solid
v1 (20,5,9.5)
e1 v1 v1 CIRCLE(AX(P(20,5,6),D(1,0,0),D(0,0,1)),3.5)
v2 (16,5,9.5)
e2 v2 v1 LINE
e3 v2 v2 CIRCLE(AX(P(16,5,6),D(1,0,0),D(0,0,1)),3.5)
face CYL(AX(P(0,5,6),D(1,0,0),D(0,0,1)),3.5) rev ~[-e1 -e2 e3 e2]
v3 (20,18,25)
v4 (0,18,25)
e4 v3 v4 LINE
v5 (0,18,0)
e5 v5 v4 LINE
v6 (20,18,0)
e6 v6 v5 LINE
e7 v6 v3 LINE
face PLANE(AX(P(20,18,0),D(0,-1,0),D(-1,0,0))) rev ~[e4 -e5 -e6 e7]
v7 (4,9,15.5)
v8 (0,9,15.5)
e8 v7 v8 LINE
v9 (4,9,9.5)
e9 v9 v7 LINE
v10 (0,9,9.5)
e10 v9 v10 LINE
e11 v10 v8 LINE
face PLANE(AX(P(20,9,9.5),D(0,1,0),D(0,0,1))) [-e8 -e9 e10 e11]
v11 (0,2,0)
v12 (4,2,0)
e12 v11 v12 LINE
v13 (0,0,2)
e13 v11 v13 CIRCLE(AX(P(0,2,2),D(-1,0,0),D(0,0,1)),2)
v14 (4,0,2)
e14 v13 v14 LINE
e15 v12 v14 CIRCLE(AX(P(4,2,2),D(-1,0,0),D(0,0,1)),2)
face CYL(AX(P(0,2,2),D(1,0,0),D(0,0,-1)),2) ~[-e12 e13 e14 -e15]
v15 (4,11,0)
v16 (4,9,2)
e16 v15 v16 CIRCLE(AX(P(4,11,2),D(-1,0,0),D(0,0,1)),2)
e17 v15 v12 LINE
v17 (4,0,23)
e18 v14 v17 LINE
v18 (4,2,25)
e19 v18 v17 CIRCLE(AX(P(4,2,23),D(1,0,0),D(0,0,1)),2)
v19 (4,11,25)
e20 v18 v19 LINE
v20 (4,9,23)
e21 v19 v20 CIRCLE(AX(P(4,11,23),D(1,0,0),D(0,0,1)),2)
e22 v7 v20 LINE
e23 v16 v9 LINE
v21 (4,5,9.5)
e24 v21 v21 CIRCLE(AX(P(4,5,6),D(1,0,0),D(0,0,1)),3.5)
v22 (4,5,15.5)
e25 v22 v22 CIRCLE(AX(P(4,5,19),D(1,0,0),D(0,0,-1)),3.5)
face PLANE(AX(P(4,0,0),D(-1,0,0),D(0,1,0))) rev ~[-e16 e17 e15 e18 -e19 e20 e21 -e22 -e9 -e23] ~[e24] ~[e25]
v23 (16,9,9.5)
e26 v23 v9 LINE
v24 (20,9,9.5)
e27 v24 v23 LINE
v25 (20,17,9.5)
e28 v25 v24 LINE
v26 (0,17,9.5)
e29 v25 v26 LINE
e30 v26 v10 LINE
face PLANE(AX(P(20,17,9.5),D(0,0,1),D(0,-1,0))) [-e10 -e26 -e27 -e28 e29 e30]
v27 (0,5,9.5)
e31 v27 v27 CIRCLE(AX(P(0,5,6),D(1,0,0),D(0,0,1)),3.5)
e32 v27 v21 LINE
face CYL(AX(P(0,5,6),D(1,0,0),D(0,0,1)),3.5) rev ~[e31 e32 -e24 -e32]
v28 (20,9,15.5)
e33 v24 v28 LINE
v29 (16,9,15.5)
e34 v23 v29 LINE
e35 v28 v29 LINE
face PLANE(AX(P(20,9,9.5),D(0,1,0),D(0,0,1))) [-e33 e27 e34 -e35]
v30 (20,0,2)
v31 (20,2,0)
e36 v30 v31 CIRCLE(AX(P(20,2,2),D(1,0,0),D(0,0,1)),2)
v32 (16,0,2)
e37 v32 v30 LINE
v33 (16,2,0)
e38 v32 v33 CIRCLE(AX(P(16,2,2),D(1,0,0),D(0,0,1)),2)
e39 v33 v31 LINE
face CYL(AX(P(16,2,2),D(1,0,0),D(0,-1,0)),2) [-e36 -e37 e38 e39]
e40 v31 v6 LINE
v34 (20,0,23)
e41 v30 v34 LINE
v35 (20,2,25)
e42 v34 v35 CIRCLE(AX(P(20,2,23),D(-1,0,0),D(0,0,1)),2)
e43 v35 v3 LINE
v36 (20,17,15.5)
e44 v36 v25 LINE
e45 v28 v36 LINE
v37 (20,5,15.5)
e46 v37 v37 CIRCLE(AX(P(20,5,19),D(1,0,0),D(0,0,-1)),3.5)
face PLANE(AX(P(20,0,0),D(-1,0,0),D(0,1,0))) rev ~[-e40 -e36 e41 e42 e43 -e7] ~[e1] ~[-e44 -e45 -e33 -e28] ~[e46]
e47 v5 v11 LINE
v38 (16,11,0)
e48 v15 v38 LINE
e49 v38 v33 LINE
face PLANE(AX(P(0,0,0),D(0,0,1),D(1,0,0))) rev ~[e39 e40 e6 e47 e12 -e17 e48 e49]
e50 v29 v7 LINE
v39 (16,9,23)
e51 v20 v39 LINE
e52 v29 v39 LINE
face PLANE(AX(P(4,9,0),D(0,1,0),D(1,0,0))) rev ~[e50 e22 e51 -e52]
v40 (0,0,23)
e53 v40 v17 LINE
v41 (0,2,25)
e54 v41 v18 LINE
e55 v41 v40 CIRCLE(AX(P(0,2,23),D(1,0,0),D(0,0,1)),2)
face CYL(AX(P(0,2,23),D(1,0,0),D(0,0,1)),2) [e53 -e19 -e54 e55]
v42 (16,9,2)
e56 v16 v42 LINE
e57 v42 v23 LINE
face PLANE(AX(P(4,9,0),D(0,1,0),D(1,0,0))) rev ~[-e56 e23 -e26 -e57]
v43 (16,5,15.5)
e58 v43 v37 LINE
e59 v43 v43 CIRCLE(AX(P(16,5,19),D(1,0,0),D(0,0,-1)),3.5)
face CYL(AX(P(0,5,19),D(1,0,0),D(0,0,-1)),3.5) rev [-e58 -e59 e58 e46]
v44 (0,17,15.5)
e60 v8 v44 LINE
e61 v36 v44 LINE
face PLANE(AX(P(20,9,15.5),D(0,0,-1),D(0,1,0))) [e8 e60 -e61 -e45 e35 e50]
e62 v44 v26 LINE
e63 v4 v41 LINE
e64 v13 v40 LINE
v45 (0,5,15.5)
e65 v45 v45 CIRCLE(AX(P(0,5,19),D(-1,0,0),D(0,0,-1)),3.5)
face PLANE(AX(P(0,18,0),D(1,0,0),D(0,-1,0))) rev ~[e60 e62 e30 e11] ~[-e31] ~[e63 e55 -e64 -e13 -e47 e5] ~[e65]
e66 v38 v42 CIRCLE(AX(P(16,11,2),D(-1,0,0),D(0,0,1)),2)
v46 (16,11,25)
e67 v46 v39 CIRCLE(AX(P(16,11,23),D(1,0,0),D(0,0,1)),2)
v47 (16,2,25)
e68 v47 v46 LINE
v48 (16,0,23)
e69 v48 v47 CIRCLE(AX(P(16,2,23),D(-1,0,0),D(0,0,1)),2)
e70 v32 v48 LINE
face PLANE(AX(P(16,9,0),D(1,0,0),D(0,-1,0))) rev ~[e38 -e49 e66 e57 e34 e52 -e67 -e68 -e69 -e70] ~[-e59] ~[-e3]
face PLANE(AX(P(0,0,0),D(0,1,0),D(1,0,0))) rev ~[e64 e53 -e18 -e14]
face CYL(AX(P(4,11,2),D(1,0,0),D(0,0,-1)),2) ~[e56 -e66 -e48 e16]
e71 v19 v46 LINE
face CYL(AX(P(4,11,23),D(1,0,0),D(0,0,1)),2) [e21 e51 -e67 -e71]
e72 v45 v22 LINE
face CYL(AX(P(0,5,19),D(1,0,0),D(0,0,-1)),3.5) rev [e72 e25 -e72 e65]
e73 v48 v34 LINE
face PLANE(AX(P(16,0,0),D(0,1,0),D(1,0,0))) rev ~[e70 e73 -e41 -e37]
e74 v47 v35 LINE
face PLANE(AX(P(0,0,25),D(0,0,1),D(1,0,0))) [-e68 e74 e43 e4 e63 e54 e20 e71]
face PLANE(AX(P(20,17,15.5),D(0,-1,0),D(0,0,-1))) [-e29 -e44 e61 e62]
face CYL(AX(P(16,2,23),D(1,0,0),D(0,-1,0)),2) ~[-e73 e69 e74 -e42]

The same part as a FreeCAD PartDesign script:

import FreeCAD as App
import Part
import Sketcher
from FreeCAD import Vector


def edges_at(feature, points):
    """Names of the edges that pass closest to the given points."""
    edges = feature.Shape.Edges
    near = lambda p: min(range(len(edges)), key=lambda i: edges[i].distToShape(Part.Vertex(*p))[0])
    return sorted({f"Edge{near(p) + 1}" for p in points})


def add_polygon(sketch, points):
    """Adds a closed chain of lines whose ends are joined by coincident constraints."""
    first, n = sketch.GeometryCount, len(points)
    for a, b in zip(points, points[1:] + points[:1]):
        sketch.addGeometry(Part.LineSegment(App.Vector(*a, 0), App.Vector(*b, 0)), False)
    for i in range(n):
        sketch.addConstraint(Sketcher.Constraint("Coincident", first + i, 2, first + (i + 1) % n, 1))

doc = App.newDocument("Part")
body = doc.addObject("PartDesign::Body", "Body")

# Sketch on XY plane
sketch1 = body.newObject("Sketcher::SketchObject", "Sketch")
sketch1.AttachmentSupport = (doc.getObject("XY_Plane"), [""])
sketch1.MapMode = "FlatFace"
add_polygon(sketch1, [(16, 0), (20, 0), (20, 18), (0, 18), (0, 0), (4, 0), (4, 9), (16, 9)])  # lines 0-7
sketch1.addConstraint([
    Sketcher.Constraint("Horizontal", 0),
    Sketcher.Constraint("Vertical", 1),
    Sketcher.Constraint("Horizontal", 2),
    Sketcher.Constraint("Vertical", 3),
    Sketcher.Constraint("Horizontal", 4),
    Sketcher.Constraint("Vertical", 5),
    Sketcher.Constraint("Horizontal", 6),
    Sketcher.Constraint("Vertical", 7),
    Sketcher.Constraint("Coincident", 3, 2, -1, 1),
    Sketcher.Constraint("PointOnObject", 0, 2, -1),
    Sketcher.Constraint("Equal", 0, 4),
    Sketcher.Constraint("DistanceX", 0, 1, 0, 2, 4.0),
    Sketcher.Constraint("DistanceX", 2, 2, 2, 1, 20.0),
    Sketcher.Constraint("DistanceY", 1, 1, 1, 2, 18.0),
    Sketcher.Constraint("DistanceY", 5, 1, 5, 2, 9.0),
])
pad1 = body.newObject("PartDesign::Pad", "Pad")
pad1.Profile = sketch1
pad1.Length = 25

# Sketch on YZ plane
sketch2 = body.newObject("Sketcher::SketchObject", "Sketch001")
sketch2.AttachmentSupport = (doc.getObject("YZ_Plane"), [""])
sketch2.MapMode = "FlatFace"
sketch2.addGeometry(Part.Circle(Vector(5, 6, 0), Vector(0, 0, 1), 3.5), False)
sketch2.addConstraint([
    Sketcher.Constraint("Diameter", 0, 7.0),
    Sketcher.Constraint("DistanceX", -1, 1, 0, 3, 5.0),
    Sketcher.Constraint("DistanceY", -1, 1, 0, 3, 6.0),
])
doc.recompute()
hole = body.newObject("PartDesign::Hole", "Hole")
hole.Profile = sketch2
hole.ThreadType = "None"
hole.Diameter = 7
hole.DepthType = "ThroughAll"
hole.Reversed = True
doc.recompute()

datumplane = body.newObject("PartDesign::Plane", "DatumPlane")
datumplane.AttachmentSupport = (doc.getObject("XY_Plane"), [""])
datumplane.MapMode = "FlatFace"
datumplane.AttachmentOffset = App.Placement(Vector(0, 0, 12.5), App.Rotation())
mirrored = body.newObject("PartDesign::Mirrored", "Mirrored")
mirrored.Originals = [hole]
mirrored.MirrorPlane = (datumplane, [""])
body.Tip = mirrored
doc.recompute()

fillet = body.newObject("PartDesign::Fillet", "Fillet")
fillet.Base = (mirrored, edges_at(mirrored, [
    (10, 9, 0),
    (2, 0, 0),
    (18, 0, 0),
    (2, 0, 25),
    (18, 0, 25),
    (10, 9, 25),
]))
fillet.Radius = 2

# Sketch on YZ plane
sketch3 = body.newObject("Sketcher::SketchObject", "Sketch002")
sketch3.AttachmentSupport = (doc.getObject("YZ_Plane"), [""])
sketch3.MapMode = "FlatFace"
sketch3.AttachmentOffset = App.Placement(Vector(0, 0, 20), App.Rotation())
add_polygon(sketch3, [(17, 10), (17, 16), (9, 16), (9, 10)])  # lines 0-3
sketch3.addConstraint([
    Sketcher.Constraint("Vertical", 0),
    Sketcher.Constraint("Horizontal", 1),
    Sketcher.Constraint("Vertical", 2),
    Sketcher.Constraint("Horizontal", 3),
    Sketcher.Constraint("DistanceX", 1, 2, 1, 1, 8.0),
    Sketcher.Constraint("DistanceY", 0, 1, 0, 2, 6.0),
    Sketcher.Constraint("DistanceX", -1, 1, 1, 2, 9.0),
    Sketcher.Constraint("DistanceY", -1, 1, 2, 2, 9.5),
])
pocket1 = body.newObject("PartDesign::Pocket", "Pocket")
pocket1.Profile = sketch3
pocket1.Length = 20

doc.recompute()
